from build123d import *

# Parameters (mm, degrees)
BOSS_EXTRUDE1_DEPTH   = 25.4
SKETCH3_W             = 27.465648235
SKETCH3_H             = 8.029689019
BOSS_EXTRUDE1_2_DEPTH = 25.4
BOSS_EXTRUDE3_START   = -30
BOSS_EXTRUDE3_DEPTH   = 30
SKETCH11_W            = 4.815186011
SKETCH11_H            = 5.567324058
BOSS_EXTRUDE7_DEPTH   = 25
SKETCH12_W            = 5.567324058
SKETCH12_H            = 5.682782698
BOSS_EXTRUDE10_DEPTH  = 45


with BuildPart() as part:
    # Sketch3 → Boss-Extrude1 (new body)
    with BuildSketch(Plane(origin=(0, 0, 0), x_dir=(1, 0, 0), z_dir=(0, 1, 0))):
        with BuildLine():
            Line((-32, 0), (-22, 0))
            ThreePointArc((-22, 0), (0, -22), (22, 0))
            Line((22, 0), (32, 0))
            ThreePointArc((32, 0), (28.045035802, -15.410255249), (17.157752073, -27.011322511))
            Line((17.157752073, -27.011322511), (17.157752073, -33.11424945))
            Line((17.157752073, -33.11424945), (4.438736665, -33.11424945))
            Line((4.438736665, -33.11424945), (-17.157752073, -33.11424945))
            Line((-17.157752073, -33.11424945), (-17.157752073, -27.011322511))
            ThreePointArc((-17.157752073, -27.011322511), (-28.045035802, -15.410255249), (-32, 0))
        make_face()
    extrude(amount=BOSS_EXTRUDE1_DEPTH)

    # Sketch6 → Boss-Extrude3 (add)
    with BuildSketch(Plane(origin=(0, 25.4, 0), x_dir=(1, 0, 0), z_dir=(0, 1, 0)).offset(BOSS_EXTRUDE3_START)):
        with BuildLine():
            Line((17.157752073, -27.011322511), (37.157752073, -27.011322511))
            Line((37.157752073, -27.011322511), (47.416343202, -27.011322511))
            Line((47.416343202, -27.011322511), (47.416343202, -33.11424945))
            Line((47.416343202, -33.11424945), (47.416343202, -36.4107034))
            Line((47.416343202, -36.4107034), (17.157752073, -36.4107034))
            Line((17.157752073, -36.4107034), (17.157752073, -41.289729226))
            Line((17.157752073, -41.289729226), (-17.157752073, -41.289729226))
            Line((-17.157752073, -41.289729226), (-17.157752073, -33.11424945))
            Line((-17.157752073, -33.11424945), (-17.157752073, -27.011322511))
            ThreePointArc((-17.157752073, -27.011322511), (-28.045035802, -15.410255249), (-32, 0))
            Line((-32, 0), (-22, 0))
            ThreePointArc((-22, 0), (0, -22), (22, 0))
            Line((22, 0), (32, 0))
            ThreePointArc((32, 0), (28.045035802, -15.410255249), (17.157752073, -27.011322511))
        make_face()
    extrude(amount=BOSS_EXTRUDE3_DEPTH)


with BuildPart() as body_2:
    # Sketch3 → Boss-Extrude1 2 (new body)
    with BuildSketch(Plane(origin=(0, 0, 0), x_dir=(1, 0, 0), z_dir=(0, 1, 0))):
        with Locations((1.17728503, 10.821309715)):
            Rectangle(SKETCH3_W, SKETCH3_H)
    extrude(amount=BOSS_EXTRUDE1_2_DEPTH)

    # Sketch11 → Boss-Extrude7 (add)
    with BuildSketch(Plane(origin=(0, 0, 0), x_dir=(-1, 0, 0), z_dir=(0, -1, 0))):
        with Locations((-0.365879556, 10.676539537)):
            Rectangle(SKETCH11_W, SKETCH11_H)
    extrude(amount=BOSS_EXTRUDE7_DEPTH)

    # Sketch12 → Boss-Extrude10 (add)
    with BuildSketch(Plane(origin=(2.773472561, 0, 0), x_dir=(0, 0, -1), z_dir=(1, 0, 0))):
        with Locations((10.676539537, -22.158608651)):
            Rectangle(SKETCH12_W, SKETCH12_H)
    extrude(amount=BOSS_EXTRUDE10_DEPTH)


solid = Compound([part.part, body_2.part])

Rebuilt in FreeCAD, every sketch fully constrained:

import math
import FreeCAD as App
import Part
import Sketcher
from FreeCAD import Vector
Q = App.Units.Quantity


def add_polygon(sketch, points):
    """Adds a closed chain of lines whose ends are joined by coincident constraints."""
    first, n = sketch.GeometryCount, len(points)
    for a, b in zip(points, points[1:] + points[:1]):
        sketch.addGeometry(Part.LineSegment(App.Vector(*a, 0), App.Vector(*b, 0)), False)
    for i in range(n):
        sketch.addConstraint(Sketcher.Constraint("Coincident", first + i, 2, first + (i + 1) % n, 1))

doc = App.newDocument("Part")
body = doc.addObject("PartDesign::Body", "Body")

# Sketch on XZ plane
sketch1 = body.newObject("Sketcher::SketchObject", "Sketch")
sketch1.AttachmentSupport = (doc.getObject("XZ_Plane"), [""])
sketch1.MapMode = "FlatFace"
sketch1.addGeometry([
    Part.LineSegment(Vector(-22, 0, 0), Vector(-32, 0, 0)),  # 0
    Part.ArcOfCircle(Part.Circle(Vector(0, 0, 0), Vector(0, 0, 1), 32), math.radians(122), math.radians(180)),  # 1
    Part.LineSegment(Vector(-17, 27, 0), Vector(-17, 33, 0)),  # 2
    Part.LineSegment(Vector(-17, 33, 0), Vector(17, 33, 0)),  # 3
    Part.LineSegment(Vector(17, 33, 0), Vector(17, 27, 0)),  # 4
    Part.ArcOfCircle(Part.Circle(Vector(0, 0, 0), Vector(0, 0, 1), 32), math.radians(0), math.radians(58)),  # 5
    Part.LineSegment(Vector(32, 0, 0), Vector(22, 0, 0)),  # 6
    Part.ArcOfCircle(Part.Circle(Vector(0, 0, 0), Vector(0, 0, 1), 22), math.radians(0), math.radians(180)),  # 7
], False)
sketch1.addConstraint([
    Sketcher.Constraint("Coincident", 0, 2, 1, 2),
    Sketcher.Constraint("Coincident", 1, 1, 2, 1),
    Sketcher.Constraint("Coincident", 2, 2, 3, 1),
    Sketcher.Constraint("Coincident", 3, 2, 4, 1),
    Sketcher.Constraint("Coincident", 4, 2, 5, 2),
    Sketcher.Constraint("Coincident", 5, 1, 6, 1),
    Sketcher.Constraint("Coincident", 6, 2, 7, 1),
    Sketcher.Constraint("Coincident", 7, 2, 0, 1),
    Sketcher.Constraint("Horizontal", 0),
    Sketcher.Constraint("Vertical", 2),
    Sketcher.Constraint("Horizontal", 3),
    Sketcher.Constraint("Vertical", 4),
    Sketcher.Constraint("Horizontal", 6),
    Sketcher.Constraint("Coincident", 1, 3, -1, 1),
    Sketcher.Constraint("Coincident", 5, 3, -1, 1),
    Sketcher.Constraint("Coincident", 7, 3, -1, 1),
    Sketcher.Constraint("Equal", 1, 5),
    Sketcher.Constraint("PointOnObject", 0, 2, -1),
    Sketcher.Constraint("PointOnObject", 5, 1, -1),
    Sketcher.Constraint("Horizontal", 1, 1, 4, 2),
    Sketcher.Constraint("Radius", 1, Q("32 mm")),
    Sketcher.Constraint("Radius", 7, Q("22 mm")),
    Sketcher.Constraint("DistanceX", 3, 1, 3, 2, Q("34.315504 mm")),
    Sketcher.Constraint("DistanceY", 2, 1, 2, 2, Q("6.102927 mm")),
])
pad1 = body.newObject("PartDesign::Pad", "Pad")
pad1.Profile = sketch1
pad1.Length = 25.4
pad1.Reversed = True

# Sketch on XZ plane
sketch2 = body.newObject("Sketcher::SketchObject", "Sketch001")
sketch2.AttachmentSupport = (doc.getObject("XZ_Plane"), [""])
sketch2.MapMode = "FlatFace"
sketch2.AttachmentOffset = App.Placement(Vector(0, 0, 4.6), App.Rotation())
sketch2.addGeometry([
    Part.LineSegment(Vector(47.4, 27, 0), Vector(17.2, 27, 0)),  # 0
    Part.ArcOfCircle(Part.Circle(Vector(0, 0, 0), Vector(0, 0, 1), 32), math.radians(0), math.radians(58)),  # 1
    Part.LineSegment(Vector(32, 0, 0), Vector(22, 0, 0)),  # 2
    Part.ArcOfCircle(Part.Circle(Vector(0, 0, 0), Vector(0, 0, 1), 22), math.radians(0), math.radians(180)),  # 3
    Part.LineSegment(Vector(-22, 0, 0), Vector(-32, 0, 0)),  # 4
    Part.ArcOfCircle(Part.Circle(Vector(0, 0, 0), Vector(0, 0, 1), 32), math.radians(122), math.radians(180)),  # 5
    Part.LineSegment(Vector(-17.2, 27, 0), Vector(-17.2, 41.3, 0)),  # 6
    Part.LineSegment(Vector(-17.2, 41.3, 0), Vector(17.2, 41.3, 0)),  # 7
    Part.LineSegment(Vector(17.2, 41.3, 0), Vector(17.2, 36.4, 0)),  # 8
    Part.LineSegment(Vector(17.2, 36.4, 0), Vector(47.4, 36.4, 0)),  # 9
    Part.LineSegment(Vector(47.4, 36.4, 0), Vector(47.4, 27, 0)),  # 10
], False)
sketch2.addConstraint([
    Sketcher.Constraint("Coincident", 0, 2, 1, 2),
    Sketcher.Constraint("Coincident", 1, 1, 2, 1),
    Sketcher.Constraint("Coincident", 2, 2, 3, 1),
    Sketcher.Constraint("Coincident", 3, 2, 4, 1),
    Sketcher.Constraint("Coincident", 4, 2, 5, 2),
    Sketcher.Constraint("Coincident", 5, 1, 6, 1),
    Sketcher.Constraint("Coincident", 6, 2, 7, 1),
    Sketcher.Constraint("Coincident", 7, 2, 8, 1),
    Sketcher.Constraint("Coincident", 8, 2, 9, 1),
    Sketcher.Constraint("Coincident", 9, 2, 10, 1),
    Sketcher.Constraint("Coincident", 10, 2, 0, 1),
    Sketcher.Constraint("Horizontal", 0),
    Sketcher.Constraint("Horizontal", 2),
    Sketcher.Constraint("Horizontal", 4),
    Sketcher.Constraint("Vertical", 6),
    Sketcher.Constraint("Horizontal", 7),
    Sketcher.Constraint("Vertical", 8),
    Sketcher.Constraint("Horizontal", 9),
    Sketcher.Constraint("Vertical", 10),
    Sketcher.Constraint("Coincident", 1, 3, -1, 1),
    Sketcher.Constraint("Coincident", 3, 3, -1, 1),
    Sketcher.Constraint("Coincident", 5, 3, -1, 1),
    Sketcher.Constraint("Equal", 1, 5),
    Sketcher.Constraint("PointOnObject", 1, 1, -1),
    Sketcher.Constraint("PointOnObject", 3, 2, -1),
    Sketcher.Constraint("Horizontal", 0, 2, 5, 1),
    Sketcher.Constraint("Vertical", 0, 2, 7, 2),
    Sketcher.Constraint("Radius", 1, Q("32 mm")),
    Sketcher.Constraint("Radius", 3, Q("22 mm")),
    Sketcher.Constraint("DistanceX", 0, 2, 0, 1, Q("30.258591 mm")),
    Sketcher.Constraint("DistanceY", 10, 2, 10, 1, Q("9.399381 mm")),
    Sketcher.Constraint("DistanceX", 7, 1, 7, 2, Q("34.315504 mm")),
    Sketcher.Constraint("DistanceY", 6, 1, 6, 2, Q("14.278407 mm")),
])
pad2 = body.newObject("PartDesign::Pad", "Pad001")
pad2.Profile = sketch2
pad2.Length = 30
pad2.Reversed = True
body2 = doc.addObject("PartDesign::Body", "Body001")

# Sketch on XZ plane
sketch3 = body2.newObject("Sketcher::SketchObject", "Sketch002")
sketch3.AttachmentSupport = (doc.getObject("XZ_Plane001"), [""])
sketch3.MapMode = "FlatFace"
add_polygon(sketch3, [(-13, -15), (-13, -7), (15, -7), (15, -15)])  # lines 0-3
sketch3.addConstraint([
    Sketcher.Constraint("Vertical", 0),
    Sketcher.Constraint("Horizontal", 1),
    Sketcher.Constraint("Vertical", 2),
    Sketcher.Constraint("Horizontal", 3),
    Sketcher.Constraint("DistanceX", 1, 1, 1, 2, Q("27.465648 mm")),
    Sketcher.Constraint("DistanceY", 0, 1, 0, 2, Q("8.029689 mm")),
    Sketcher.Constraint("DistanceX", 0, 2, -1, 1, Q("12.555539 mm")),
    Sketcher.Constraint("DistanceY", 0, 2, -1, 1, Q("6.806465 mm")),
])
pad3 = body2.newObject("PartDesign::Pad", "Pad002")
pad3.Profile = sketch3
pad3.Length = 25.4
pad3.Reversed = True

# Sketch on XZ plane
sketch4 = body2.newObject("Sketcher::SketchObject", "Sketch003")
sketch4.AttachmentSupport = (doc.getObject("XZ_Plane001"), [""])
sketch4.MapMode = "FlatFace"
add_polygon(sketch4, [(2.8, -13.5), (2.8, -7.9), (-2, -7.9), (-2, -13.5)])  # lines 0-3
sketch4.addConstraint([
    Sketcher.Constraint("Vertical", 0),
    Sketcher.Constraint("Horizontal", 1),
    Sketcher.Constraint("Vertical", 2),
    Sketcher.Constraint("Horizontal", 3),
    Sketcher.Constraint("DistanceY", 2, 2, -1, 1, Q("13.460202 mm")),
    Sketcher.Constraint("DistanceX", 1, 2, 1, 1, Q("4.815186 mm")),
    Sketcher.Constraint("DistanceY", 0, 1, 0, 2, Q("5.567324 mm")),
    Sketcher.Constraint("DistanceX", -1, 1, 0, 2, Q("2.773473 mm")),
])
pad4 = body2.newObject("PartDesign::Pad", "Pad003")
pad4.Profile = sketch4
pad4.Length = 25

# Sketch on YZ plane
sketch5 = body2.newObject("Sketcher::SketchObject", "Sketch004")
sketch5.AttachmentSupport = (doc.getObject("YZ_Plane001"), [""])
sketch5.MapMode = "FlatFace"
sketch5.AttachmentOffset = App.Placement(Vector(0, 0, 2.773473), App.Rotation())
add_polygon(sketch5, [(-19, -8), (-25, -8), (-25, -13), (-19, -13)])  # lines 0-3
sketch5.addConstraint([
    Sketcher.Constraint("Horizontal", 0),
    Sketcher.Constraint("Vertical", 1),
    Sketcher.Constraint("Horizontal", 2),
    Sketcher.Constraint("Vertical", 3),
    Sketcher.Constraint("DistanceX", 0, 2, -1, 1, Q("25 mm")),
    Sketcher.Constraint("DistanceY", 1, 2, -1, 1, Q("13.460202 mm")),
    Sketcher.Constraint("DistanceX", 0, 2, 0, 1, Q("5.682783 mm")),
    Sketcher.Constraint("DistanceY", 1, 2, 1, 1, Q("5.567324 mm")),
])
pad5 = body2.newObject("PartDesign::Pad", "Pad004")
pad5.Profile = sketch5
pad5.Length = 45

doc.recompute()
